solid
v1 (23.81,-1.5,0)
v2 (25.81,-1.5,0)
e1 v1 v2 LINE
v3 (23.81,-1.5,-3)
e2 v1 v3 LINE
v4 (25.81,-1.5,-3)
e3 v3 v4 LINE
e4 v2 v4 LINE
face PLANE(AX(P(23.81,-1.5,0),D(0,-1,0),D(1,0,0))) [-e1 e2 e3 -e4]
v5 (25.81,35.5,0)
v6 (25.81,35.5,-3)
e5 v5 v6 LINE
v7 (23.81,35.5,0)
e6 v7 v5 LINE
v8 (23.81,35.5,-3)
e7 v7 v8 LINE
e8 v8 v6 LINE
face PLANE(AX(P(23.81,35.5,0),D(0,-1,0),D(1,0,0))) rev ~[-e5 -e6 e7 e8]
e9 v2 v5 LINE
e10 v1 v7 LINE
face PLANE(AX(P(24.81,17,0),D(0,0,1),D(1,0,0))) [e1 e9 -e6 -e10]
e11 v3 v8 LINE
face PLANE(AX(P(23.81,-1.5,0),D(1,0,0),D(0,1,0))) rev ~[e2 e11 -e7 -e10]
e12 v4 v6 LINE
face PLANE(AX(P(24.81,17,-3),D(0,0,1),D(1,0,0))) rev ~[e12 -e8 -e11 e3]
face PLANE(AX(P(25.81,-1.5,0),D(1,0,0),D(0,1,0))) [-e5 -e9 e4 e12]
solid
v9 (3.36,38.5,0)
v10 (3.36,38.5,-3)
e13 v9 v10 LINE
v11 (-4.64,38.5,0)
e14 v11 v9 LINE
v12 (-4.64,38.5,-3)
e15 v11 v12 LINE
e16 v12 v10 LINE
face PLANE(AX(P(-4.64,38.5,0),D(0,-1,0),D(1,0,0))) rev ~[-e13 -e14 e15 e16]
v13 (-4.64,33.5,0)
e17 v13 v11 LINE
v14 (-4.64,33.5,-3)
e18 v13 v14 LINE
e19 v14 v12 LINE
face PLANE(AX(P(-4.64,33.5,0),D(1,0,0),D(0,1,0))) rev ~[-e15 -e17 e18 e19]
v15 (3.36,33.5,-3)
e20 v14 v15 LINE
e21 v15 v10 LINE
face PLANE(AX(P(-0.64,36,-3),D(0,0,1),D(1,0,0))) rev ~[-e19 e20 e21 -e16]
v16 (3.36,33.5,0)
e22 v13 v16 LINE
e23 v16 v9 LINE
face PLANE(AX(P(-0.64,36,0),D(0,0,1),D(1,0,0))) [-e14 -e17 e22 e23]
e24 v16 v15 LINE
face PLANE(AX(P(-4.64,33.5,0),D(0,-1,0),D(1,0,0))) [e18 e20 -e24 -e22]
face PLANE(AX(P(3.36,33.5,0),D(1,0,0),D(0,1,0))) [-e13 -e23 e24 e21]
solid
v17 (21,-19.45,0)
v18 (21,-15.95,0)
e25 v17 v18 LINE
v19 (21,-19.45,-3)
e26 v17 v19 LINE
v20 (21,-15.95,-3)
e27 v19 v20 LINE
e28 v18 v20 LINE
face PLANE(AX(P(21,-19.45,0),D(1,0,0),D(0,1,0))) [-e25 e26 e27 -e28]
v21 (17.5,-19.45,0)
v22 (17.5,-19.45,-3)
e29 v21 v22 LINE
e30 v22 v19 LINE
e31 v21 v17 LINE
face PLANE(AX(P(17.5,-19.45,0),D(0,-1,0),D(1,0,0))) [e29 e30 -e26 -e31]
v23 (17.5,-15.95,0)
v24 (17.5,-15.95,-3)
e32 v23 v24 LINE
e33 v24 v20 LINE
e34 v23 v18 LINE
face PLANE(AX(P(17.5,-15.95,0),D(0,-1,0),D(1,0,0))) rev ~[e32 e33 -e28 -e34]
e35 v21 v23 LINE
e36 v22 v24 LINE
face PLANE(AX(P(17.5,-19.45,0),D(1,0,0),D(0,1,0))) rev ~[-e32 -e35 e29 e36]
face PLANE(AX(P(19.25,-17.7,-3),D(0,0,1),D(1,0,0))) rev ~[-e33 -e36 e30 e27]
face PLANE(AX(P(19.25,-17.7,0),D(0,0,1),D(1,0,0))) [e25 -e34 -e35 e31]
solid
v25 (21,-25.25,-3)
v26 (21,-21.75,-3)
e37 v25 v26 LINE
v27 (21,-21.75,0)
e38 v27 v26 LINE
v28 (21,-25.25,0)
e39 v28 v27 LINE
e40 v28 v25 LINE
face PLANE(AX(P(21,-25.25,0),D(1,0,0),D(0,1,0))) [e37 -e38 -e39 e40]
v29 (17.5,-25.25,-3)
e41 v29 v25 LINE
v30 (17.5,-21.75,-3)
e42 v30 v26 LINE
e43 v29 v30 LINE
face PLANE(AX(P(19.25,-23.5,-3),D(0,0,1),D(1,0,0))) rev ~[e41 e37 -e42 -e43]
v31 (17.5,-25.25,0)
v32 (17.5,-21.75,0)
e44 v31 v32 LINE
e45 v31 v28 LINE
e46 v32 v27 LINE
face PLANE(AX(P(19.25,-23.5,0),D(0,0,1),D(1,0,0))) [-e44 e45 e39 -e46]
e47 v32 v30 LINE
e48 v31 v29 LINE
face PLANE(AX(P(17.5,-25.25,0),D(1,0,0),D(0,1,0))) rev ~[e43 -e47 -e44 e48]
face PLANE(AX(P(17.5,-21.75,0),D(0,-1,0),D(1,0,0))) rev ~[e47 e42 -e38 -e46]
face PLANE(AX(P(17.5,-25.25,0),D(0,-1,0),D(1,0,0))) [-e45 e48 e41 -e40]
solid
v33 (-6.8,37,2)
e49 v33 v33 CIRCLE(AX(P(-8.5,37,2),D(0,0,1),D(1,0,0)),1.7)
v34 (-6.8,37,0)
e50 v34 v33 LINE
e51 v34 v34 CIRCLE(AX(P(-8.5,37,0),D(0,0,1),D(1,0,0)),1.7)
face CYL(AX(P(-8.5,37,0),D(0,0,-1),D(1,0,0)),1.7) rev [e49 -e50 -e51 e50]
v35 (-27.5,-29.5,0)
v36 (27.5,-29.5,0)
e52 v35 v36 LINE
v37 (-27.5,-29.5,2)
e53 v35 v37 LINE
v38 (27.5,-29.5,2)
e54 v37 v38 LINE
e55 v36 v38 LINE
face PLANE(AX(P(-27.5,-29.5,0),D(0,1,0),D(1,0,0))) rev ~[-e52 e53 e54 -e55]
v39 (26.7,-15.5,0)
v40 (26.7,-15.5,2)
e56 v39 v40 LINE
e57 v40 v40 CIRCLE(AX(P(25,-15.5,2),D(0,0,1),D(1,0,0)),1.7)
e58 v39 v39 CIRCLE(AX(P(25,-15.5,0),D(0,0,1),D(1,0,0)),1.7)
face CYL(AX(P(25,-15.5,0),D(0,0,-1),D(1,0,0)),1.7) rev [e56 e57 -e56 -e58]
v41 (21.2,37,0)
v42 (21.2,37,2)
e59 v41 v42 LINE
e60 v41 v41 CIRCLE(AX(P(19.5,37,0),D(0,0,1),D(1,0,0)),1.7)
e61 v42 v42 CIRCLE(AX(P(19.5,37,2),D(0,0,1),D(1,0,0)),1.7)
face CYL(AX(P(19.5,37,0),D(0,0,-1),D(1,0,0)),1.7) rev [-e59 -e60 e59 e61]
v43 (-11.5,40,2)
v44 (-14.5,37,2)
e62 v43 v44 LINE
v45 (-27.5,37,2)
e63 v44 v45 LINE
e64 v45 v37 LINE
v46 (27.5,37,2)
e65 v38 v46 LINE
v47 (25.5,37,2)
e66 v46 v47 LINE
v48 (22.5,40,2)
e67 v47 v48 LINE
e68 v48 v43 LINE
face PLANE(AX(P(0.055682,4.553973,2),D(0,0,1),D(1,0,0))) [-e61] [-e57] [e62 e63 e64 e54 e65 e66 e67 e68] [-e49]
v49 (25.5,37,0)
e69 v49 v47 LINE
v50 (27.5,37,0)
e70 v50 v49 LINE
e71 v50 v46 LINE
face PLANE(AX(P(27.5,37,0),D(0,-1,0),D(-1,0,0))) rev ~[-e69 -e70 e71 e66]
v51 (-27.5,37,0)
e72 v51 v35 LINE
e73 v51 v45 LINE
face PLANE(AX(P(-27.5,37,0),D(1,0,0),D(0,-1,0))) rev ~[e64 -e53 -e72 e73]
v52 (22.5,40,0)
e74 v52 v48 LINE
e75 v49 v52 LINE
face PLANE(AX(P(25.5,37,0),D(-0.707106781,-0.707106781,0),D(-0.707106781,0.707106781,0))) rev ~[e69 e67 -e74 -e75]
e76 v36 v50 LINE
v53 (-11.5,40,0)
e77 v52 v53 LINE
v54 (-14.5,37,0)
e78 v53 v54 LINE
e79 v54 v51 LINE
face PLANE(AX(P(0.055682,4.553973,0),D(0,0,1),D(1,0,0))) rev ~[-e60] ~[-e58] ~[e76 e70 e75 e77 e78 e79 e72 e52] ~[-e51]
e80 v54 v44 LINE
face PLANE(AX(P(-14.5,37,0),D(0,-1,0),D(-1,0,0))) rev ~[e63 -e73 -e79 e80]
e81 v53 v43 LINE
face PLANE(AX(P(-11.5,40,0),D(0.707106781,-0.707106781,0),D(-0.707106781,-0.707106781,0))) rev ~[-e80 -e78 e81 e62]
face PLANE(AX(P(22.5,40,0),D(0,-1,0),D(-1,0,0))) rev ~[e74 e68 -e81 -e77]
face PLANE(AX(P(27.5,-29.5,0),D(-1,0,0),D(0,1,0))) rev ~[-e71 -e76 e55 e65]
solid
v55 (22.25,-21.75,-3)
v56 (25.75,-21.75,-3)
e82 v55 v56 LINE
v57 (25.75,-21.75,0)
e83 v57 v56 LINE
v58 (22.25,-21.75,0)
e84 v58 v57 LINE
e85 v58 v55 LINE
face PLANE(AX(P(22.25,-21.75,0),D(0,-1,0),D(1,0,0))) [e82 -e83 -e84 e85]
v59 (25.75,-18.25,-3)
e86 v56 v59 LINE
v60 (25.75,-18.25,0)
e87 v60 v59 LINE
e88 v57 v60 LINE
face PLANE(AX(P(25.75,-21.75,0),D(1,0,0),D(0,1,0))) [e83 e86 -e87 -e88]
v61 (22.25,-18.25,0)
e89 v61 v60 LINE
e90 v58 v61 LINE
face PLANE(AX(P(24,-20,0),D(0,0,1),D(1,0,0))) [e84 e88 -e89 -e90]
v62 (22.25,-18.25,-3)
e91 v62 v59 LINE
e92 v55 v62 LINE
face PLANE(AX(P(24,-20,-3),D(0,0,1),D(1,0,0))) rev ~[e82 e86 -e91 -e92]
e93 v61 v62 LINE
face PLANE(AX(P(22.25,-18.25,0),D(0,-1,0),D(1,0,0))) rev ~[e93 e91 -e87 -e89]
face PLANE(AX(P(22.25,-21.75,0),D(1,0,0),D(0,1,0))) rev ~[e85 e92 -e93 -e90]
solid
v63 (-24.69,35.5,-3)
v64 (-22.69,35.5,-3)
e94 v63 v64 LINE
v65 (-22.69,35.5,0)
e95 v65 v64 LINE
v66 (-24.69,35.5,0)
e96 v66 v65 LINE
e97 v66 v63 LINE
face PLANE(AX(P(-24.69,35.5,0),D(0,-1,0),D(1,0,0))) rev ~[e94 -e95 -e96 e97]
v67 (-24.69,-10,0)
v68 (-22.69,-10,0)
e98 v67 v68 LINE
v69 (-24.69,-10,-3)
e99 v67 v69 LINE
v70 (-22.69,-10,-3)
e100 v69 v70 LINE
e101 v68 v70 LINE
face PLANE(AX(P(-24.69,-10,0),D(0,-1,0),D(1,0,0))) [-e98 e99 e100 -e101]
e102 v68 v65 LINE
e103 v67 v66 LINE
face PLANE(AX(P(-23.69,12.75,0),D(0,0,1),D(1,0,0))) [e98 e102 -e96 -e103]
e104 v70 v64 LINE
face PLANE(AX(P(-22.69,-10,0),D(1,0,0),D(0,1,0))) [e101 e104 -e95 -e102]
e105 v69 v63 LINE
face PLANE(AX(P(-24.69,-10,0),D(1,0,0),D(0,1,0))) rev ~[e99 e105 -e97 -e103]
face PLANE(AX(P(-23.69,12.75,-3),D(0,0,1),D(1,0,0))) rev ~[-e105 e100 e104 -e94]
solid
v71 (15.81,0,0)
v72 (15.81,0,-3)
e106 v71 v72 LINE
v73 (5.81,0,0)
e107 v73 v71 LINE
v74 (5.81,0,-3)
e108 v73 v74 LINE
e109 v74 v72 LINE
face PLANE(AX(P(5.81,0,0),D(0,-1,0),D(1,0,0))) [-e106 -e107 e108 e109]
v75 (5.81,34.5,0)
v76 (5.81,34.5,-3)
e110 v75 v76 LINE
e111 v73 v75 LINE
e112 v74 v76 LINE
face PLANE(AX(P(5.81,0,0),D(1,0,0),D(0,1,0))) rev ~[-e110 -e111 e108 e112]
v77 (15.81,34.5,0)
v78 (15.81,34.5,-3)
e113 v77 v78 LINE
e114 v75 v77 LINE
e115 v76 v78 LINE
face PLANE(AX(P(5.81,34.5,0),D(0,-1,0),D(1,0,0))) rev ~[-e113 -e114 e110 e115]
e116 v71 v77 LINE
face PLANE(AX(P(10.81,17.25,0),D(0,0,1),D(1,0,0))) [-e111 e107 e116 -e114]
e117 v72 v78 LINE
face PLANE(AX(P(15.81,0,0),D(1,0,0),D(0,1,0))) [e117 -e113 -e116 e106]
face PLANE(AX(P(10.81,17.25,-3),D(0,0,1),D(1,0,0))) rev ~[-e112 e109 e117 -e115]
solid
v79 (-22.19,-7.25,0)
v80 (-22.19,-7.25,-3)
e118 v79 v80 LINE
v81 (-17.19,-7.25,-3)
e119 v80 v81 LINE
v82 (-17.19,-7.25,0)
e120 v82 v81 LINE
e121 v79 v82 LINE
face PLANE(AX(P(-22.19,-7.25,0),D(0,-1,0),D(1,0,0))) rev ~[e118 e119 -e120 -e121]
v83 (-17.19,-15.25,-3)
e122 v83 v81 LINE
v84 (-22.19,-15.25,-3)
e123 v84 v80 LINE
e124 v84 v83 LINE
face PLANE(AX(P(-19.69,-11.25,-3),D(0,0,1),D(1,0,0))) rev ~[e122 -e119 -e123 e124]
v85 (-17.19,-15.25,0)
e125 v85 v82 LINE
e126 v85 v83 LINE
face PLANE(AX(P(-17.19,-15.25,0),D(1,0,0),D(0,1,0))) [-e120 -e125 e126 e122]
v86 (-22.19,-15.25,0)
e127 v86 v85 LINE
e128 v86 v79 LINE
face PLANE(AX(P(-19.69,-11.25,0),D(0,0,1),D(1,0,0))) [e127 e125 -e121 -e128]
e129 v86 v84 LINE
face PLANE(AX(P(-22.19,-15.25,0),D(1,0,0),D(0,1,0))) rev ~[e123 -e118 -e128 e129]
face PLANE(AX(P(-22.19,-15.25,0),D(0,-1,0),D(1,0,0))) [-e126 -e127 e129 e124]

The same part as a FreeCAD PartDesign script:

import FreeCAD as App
import Part
import Sketcher
from FreeCAD import Vector


def add_polygon(sketch, points):
    """Adds a closed chain of lines whose ends are joined by coincident constraints."""
    first, n = sketch.GeometryCount, len(points)
    for a, b in zip(points, points[1:] + points[:1]):
        sketch.addGeometry(Part.LineSegment(App.Vector(*a, 0), App.Vector(*b, 0)), False)
    for i in range(n):
        sketch.addConstraint(Sketcher.Constraint("Coincident", first + i, 2, first + (i + 1) % n, 1))

doc = App.newDocument("Part")
body = doc.addObject("PartDesign::Body", "Body")

# Sketch on XY plane
sketch1 = body.newObject("Sketcher::SketchObject", "Sketch")
sketch1.AttachmentSupport = (doc.getObject("XY_Plane"), [""])
sketch1.MapMode = "FlatFace"
add_polygon(sketch1, [(-27.5, 37), (-27.5, -29.5), (27.5, -29.5), (27.5, 37), (25.5, 37), (22.5, 40), (-11.5, 40), (-14.5, 37)])  # lines 0-7
sketch1.addGeometry(Part.Circle(Vector(25, -15.5, 0), Vector(0, 0, 1), 1.7), False)  # 8
sketch1.addGeometry(Part.Circle(Vector(-8.5, 37, 0), Vector(0, 0, 1), 1.7), False)  # 9
sketch1.addGeometry(Part.Circle(Vector(19.5, 37, 0), Vector(0, 0, 1), 1.7), False)  # 10
sketch1.addConstraint([
    Sketcher.Constraint("Vertical", 0),
    Sketcher.Constraint("Horizontal", 1),
    Sketcher.Constraint("Vertical", 2),
    Sketcher.Constraint("Horizontal", 3),
    Sketcher.Constraint("Horizontal", 5),
    Sketcher.Constraint("Horizontal", 7),
    Sketcher.Constraint("Equal", 8, 9),
    Sketcher.Constraint("Equal", 9, 10),
    Sketcher.Constraint("Symmetric", 2, 2, 7, 2, -2),
    Sketcher.Constraint("Perpendicular", 4, 6),
    Sketcher.Constraint("Horizontal", 9, 3, 10, 3),
    Sketcher.Constraint("Horizontal", 10, 3, 2, 2),
    Sketcher.Constraint("Equal", 4, 6),
    Sketcher.Constraint("Diameter", 8, 3.4),
    Sketcher.Constraint("DistanceX", 1, 1, 1, 2, 55.0),
    Sketcher.Constraint("DistanceX", 3, 2, 3, 1, 2.0),
    Sketcher.Constraint("DistanceX", 5, 2, 5, 1, 34.0),
    Sketcher.Constraint("DistanceX", 7, 2, 7, 1, 13.0),
    Sketcher.Constraint("DistanceY", 0, 2, 0, 1, 66.5),
    Sketcher.Constraint("DistanceX", -1, 1, 8, 3, 25.0),
    Sketcher.Constraint("DistanceY", -1, 1, 9, 3, 37.0),
    Sketcher.Constraint("DistanceX", 9, 3, 10, 3, 28.0),
    Sketcher.Constraint("DistanceY", 0, 2, 8, 3, 14.0),
    Sketcher.Constraint("DistanceX", 0, 2, 9, 3, 19.0),
])
pad1 = body.newObject("PartDesign::Pad", "Pad")
pad1.Profile = sketch1
pad1.Length = 2
body2 = doc.addObject("PartDesign::Body", "Body001")
body2.AllowCompound = True

# Sketch on XY plane
sketch2 = body2.newObject("Sketcher::SketchObject", "Sketch001")
sketch2.AttachmentSupport = (doc.getObject("XY_Plane001"), [""])
sketch2.MapMode = "FlatFace"
add_polygon(sketch2, [(-22.2, -7.2), (-22.2, -15.2), (-17.2, -15.2), (-17.2, -7.2)])  # lines 0-3
add_polygon(sketch2, [(17.5, -15.9), (17.5, -19.4), (21, -19.4), (21, -15.9)])  # lines 4-7
add_polygon(sketch2, [(22.2, -18.2), (22.2, -21.8), (25.8, -21.8), (25.8, -18.2)])  # lines 8-11
add_polygon(sketch2, [(-4.6, 38.5), (-4.6, 33.5), (3.4, 33.5), (3.4, 38.5)])  # lines 12-15
add_polygon(sketch2, [(5.8, 34.5), (5.8, 0), (15.8, 0), (15.8, 34.5)])  # lines 16-19
add_polygon(sketch2, [(-24.7, 35.5), (-24.7, -10), (-22.7, -10), (-22.7, 35.5)])  # lines 20-23
add_polygon(sketch2, [(23.8, 35.5), (23.8, -1.5), (25.8, -1.5), (25.8, 35.5)])  # lines 24-27
add_polygon(sketch2, [(17.5, -21.8), (17.5, -25.2), (21, -25.2), (21, -21.8)])  # lines 28-31
sketch2.addConstraint([
    Sketcher.Constraint("Vertical", 0),
    Sketcher.Constraint("Horizontal", 1),
    Sketcher.Constraint("Vertical", 2),
    Sketcher.Constraint("Horizontal", 3),
    Sketcher.Constraint("Vertical", 4),
    Sketcher.Constraint("Horizontal", 5),
    Sketcher.Constraint("Vertical", 6),
    Sketcher.Constraint("Horizontal", 7),
    Sketcher.Constraint("Vertical", 8),
    Sketcher.Constraint("Horizontal", 9),
    Sketcher.Constraint("Vertical", 10),
    Sketcher.Constraint("Horizontal", 11),
    Sketcher.Constraint("Vertical", 12),
    Sketcher.Constraint("Horizontal", 13),
    Sketcher.Constraint("Vertical", 14),
    Sketcher.Constraint("Horizontal", 15),
    Sketcher.Constraint("Vertical", 16),
    Sketcher.Constraint("Horizontal", 17),
    Sketcher.Constraint("Vertical", 18),
    Sketcher.Constraint("Horizontal", 19),
    Sketcher.Constraint("Vertical", 20),
    Sketcher.Constraint("Horizontal", 21),
    Sketcher.Constraint("Vertical", 22),
    Sketcher.Constraint("Horizontal", 23),
    Sketcher.Constraint("Vertical", 24),
    Sketcher.Constraint("Horizontal", 25),
    Sketcher.Constraint("Vertical", 26),
    Sketcher.Constraint("Horizontal", 27),
    Sketcher.Constraint("Vertical", 28),
    Sketcher.Constraint("Horizontal", 29),
    Sketcher.Constraint("Vertical", 30),
    Sketcher.Constraint("Horizontal", 31),
    Sketcher.Constraint("PointOnObject", 16, 2, -1),
    Sketcher.Constraint("Horizontal", 23, 2, 26, 2),
    Sketcher.Constraint("Horizontal", 9, 2, 30, 2),
    Sketcher.Constraint("Vertical", 7, 2, 28, 2),
    Sketcher.Constraint("Vertical", 6, 2, 29, 2),
    Sketcher.Constraint("Equal", 7, 9),
    Sketcher.Constraint("Equal", 23, 25),
    Sketcher.Constraint("Equal", 15, 0),
    Sketcher.Constraint("Equal", 31, 4),
    Sketcher.Constraint("Equal", 6, 8),
    Sketcher.Constraint("Equal", 3, 12),
    Sketcher.Constraint("Equal", 10, 28),
    Sketcher.Constraint("DistanceX", 1, 1, 1, 2, 5.0),
    Sketcher.Constraint("DistanceX", 13, 1, 13, 2, 8.0),
    Sketcher.Constraint("DistanceX", 17, 1, 17, 2, 10.0),
    Sketcher.Constraint("DistanceX", 21, 1, 21, 2, 2.0),
    Sketcher.Constraint("DistanceY", 24, 2, 24, 1, 37.0),
    Sketcher.Constraint("DistanceX", 5, 1, 5, 2, 3.5),
    Sketcher.Constraint("DistanceY", 16, 2, 16, 1, 34.5),
    Sketcher.Constraint("DistanceY", 20, 2, 20, 1, 45.5),
    Sketcher.Constraint("DistanceX", -1, 1, 5, 2, 21.0),
    Sketcher.Constraint("DistanceY", 20, 2, -1, 1, 10.0),
    Sketcher.Constraint("DistanceX", 2, 2, 16, 2, 23.0),
    Sketcher.Constraint("DistanceY", 13, 2, 18, 2, 1.0),
    Sketcher.Constraint("DistanceX", 17, 2, 24, 2, 8.0),
    Sketcher.Constraint("DistanceY", 4, 2, 1, 2, 4.2),
    Sketcher.Constraint("DistanceY", 8, 2, 5, 2, 2.3),
    Sketcher.Constraint("DistanceX", 20, 2, 3, 2, 2.5),
    Sketcher.Constraint("DistanceX", 0, 2, -1, 1, 22.19),
    Sketcher.Constraint("DistanceY", 0, 2, -1, 1, 15.25),
    Sketcher.Constraint("DistanceX", -1, 1, 8, 2, 22.25),
    Sketcher.Constraint("DistanceX", 12, 2, -1, 1, 4.64),
])
pad2 = body2.newObject("PartDesign::Pad", "Pad001")
pad2.Profile = sketch2
pad2.Length = 3
pad2.Reversed = True

doc.recompute()
